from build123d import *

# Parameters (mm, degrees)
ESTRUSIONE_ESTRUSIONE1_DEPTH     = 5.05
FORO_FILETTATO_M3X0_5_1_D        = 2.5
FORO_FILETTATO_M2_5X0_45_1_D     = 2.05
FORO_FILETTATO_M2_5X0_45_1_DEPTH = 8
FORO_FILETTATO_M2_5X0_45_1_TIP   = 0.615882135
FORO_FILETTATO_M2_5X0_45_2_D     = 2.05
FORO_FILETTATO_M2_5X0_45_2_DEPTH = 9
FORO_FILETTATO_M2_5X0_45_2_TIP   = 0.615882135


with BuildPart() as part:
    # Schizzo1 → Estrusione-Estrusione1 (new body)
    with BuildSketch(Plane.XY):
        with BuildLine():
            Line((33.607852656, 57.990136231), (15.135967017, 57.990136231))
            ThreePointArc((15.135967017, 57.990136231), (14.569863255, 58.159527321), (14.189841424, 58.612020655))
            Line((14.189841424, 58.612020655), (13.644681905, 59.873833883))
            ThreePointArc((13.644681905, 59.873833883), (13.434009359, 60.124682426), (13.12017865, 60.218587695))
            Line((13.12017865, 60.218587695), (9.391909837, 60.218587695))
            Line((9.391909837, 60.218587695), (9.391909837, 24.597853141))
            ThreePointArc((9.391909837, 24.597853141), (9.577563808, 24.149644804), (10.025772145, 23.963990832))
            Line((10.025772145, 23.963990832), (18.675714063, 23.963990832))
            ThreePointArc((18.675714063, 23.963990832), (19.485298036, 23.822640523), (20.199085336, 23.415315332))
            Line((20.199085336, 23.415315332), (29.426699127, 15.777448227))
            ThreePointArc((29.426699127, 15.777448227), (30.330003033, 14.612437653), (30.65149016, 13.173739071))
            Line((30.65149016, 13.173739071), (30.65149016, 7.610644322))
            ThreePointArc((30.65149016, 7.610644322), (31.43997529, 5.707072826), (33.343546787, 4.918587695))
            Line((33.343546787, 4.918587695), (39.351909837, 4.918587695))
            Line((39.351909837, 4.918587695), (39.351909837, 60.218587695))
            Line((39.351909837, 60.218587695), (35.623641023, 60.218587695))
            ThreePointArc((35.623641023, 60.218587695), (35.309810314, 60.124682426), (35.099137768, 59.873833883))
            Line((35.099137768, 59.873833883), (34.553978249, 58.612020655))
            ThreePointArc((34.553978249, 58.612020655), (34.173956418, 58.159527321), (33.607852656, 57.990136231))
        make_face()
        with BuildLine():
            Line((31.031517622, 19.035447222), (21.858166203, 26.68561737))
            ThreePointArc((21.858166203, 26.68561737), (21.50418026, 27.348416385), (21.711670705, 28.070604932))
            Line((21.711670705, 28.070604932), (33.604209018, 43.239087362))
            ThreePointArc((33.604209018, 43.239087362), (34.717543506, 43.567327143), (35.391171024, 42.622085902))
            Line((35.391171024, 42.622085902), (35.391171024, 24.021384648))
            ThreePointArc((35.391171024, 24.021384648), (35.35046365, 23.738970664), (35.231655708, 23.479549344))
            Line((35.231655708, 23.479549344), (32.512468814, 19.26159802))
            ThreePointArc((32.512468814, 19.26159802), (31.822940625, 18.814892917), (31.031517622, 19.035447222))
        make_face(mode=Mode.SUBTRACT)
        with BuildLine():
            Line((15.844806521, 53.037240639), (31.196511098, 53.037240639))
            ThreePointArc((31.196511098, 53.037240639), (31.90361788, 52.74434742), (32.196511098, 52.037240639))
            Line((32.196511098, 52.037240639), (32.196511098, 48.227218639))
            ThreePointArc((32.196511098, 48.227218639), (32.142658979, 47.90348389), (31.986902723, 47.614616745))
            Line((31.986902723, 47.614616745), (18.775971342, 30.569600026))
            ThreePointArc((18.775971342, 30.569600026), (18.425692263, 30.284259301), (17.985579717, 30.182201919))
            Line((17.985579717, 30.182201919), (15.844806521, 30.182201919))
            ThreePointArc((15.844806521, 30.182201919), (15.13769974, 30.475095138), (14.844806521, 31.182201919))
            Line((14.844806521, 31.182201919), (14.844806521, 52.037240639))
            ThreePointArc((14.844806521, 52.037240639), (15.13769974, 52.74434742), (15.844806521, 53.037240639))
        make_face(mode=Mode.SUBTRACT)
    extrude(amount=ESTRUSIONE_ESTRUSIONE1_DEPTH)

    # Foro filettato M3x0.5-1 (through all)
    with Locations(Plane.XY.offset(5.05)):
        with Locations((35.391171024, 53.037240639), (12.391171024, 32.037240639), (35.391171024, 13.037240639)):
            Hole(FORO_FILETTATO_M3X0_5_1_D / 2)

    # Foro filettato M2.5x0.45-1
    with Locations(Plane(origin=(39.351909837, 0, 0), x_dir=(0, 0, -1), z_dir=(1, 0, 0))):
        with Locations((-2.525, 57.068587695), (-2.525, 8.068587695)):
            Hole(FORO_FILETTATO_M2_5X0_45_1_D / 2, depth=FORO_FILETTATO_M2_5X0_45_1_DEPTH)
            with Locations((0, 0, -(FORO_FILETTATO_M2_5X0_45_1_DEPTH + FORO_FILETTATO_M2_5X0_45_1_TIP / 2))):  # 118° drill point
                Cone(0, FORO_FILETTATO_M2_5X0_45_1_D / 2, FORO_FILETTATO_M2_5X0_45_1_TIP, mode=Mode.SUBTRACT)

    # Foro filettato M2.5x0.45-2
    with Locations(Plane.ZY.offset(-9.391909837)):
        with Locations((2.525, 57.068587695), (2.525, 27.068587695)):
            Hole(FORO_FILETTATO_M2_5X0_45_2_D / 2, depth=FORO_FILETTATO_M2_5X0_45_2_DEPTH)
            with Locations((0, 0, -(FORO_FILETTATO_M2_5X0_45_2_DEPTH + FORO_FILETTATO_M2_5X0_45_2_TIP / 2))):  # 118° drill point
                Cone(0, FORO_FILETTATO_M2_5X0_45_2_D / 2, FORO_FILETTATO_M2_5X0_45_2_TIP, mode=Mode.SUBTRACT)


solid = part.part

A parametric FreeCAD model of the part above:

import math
import FreeCAD as App
import Part
import Sketcher

V = App.Vector

doc = App.newDocument("Part")
body = doc.addObject("PartDesign::Body", "Body")

# Sketch on XY plane
sketch1 = body.newObject("Sketcher::SketchObject", "Sketch")
sketch1.AttachmentSupport = (doc.getObject("XY_Plane"), [""])
sketch1.MapMode = "FlatFace"
sketch1.addGeometry([
    Part.LineSegment(V(33.6, 58, 0), V(15.1, 58, 0)),  # 0
    Part.ArcOfCircle(Part.Circle(V(15.1, 59, 0), V(0, 0, 1), 1), math.radians(-157), math.radians(-90)),  # 1
    Part.LineSegment(V(14.2, 58.6, 0), V(13.6, 59.9, 0)),  # 2
    Part.ArcOfCircle(Part.Circle(V(13.1, 59.6, 0), V(0, 0, 1), 0.6), math.radians(23), math.radians(90)),  # 3
    Part.LineSegment(V(13.1, 60.2, 0), V(9.4, 60.2, 0)),  # 4
    Part.LineSegment(V(9.4, 60.2, 0), V(9.4, 24.6, 0)),  # 5
    Part.ArcOfCircle(Part.Circle(V(10, 24.6, 0), V(0, 0, 1), 0.6), math.radians(180), math.radians(270)),  # 6
    Part.LineSegment(V(10, 24, 0), V(18.7, 24, 0)),  # 7
    Part.ArcOfCircle(Part.Circle(V(18.7, 21.6, 0), V(0, 0, 1), 2.4), math.radians(50), math.radians(90)),  # 8
    Part.LineSegment(V(20.2, 23.4, 0), V(29.4, 15.8, 0)),  # 9
    Part.ArcOfCircle(Part.Circle(V(27.3, 13.2, 0), V(0, 0, 1), 3.4), math.radians(0), math.radians(50)),  # 10
    Part.LineSegment(V(30.7, 13.2, 0), V(30.7, 7.6, 0)),  # 11
    Part.ArcOfCircle(Part.Circle(V(33.3, 7.6, 0), V(0, 0, 1), 2.7), math.radians(180), math.radians(270)),  # 12
    Part.LineSegment(V(33.3, 4.9, 0), V(39.4, 4.9, 0)),  # 13
    Part.LineSegment(V(39.4, 4.9, 0), V(39.4, 60.2, 0)),  # 14
    Part.LineSegment(V(39.4, 60.2, 0), V(35.6, 60.2, 0)),  # 15
    Part.ArcOfCircle(Part.Circle(V(35.6, 59.6, 0), V(0, 0, 1), 0.6), math.radians(90), math.radians(157)),  # 16
    Part.LineSegment(V(35.1, 59.9, 0), V(34.6, 58.6, 0)),  # 17
    Part.ArcOfCircle(Part.Circle(V(33.6, 59, 0), V(0, 0, 1), 1), math.radians(-90), math.radians(-23)),  # 18
    Part.ArcOfCircle(Part.Circle(V(31.7, 19.8, 0), V(0, 0, 1), 1), math.radians(-130), math.radians(-33)),  # 19
    Part.LineSegment(V(31, 19, 0), V(21.9, 26.7, 0)),  # 20
    Part.ArcOfCircle(Part.Circle(V(22.5, 27.5, 0), V(0, 0, 1), 1), math.radians(142), math.radians(230)),  # 21
    Part.LineSegment(V(21.7, 28.1, 0), V(33.6, 43.2, 0)),  # 22
    Part.ArcOfCircle(Part.Circle(V(34.4, 42.6, 0), V(0, 0, 1), 1), math.radians(0), math.radians(142)),  # 23
    Part.LineSegment(V(35.4, 42.6, 0), V(35.4, 24, 0)),  # 24
    Part.ArcOfCircle(Part.Circle(V(34.4, 24, 0), V(0, 0, 1), 1), math.radians(-33), math.radians(0)),  # 25
    Part.LineSegment(V(35.2, 23.5, 0), V(32.5, 19.3, 0)),  # 26
    Part.ArcOfCircle(Part.Circle(V(15.8, 52, 0), V(0, 0, 1), 1), math.radians(90), math.radians(180)),  # 27
    Part.LineSegment(V(15.8, 53, 0), V(31.2, 53, 0)),  # 28
    Part.ArcOfCircle(Part.Circle(V(31.2, 52, 0), V(0, 0, 1), 1), math.radians(0), math.radians(90)),  # 29
    Part.LineSegment(V(32.2, 52, 0), V(32.2, 48.2, 0)),  # 30
    Part.ArcOfCircle(Part.Circle(V(31.2, 48.2, 0), V(0, 0, 1), 1), math.radians(-38), math.radians(0)),  # 31
    Part.LineSegment(V(32, 47.6, 0), V(18.8, 30.6, 0)),  # 32
    Part.ArcOfCircle(Part.Circle(V(18, 31.2, 0), V(0, 0, 1), 1), math.radians(-90), math.radians(-38)),  # 33
    Part.LineSegment(V(18, 30.2, 0), V(15.8, 30.2, 0)),  # 34
    Part.ArcOfCircle(Part.Circle(V(15.8, 31.2, 0), V(0, 0, 1), 1), math.radians(-180), math.radians(-90)),  # 35
    Part.LineSegment(V(14.8, 31.2, 0), V(14.8, 52, 0)),  # 36
], False)
sketch1.addConstraint([
    Sketcher.Constraint("Tangent", 0, 2, 1, 2),
    Sketcher.Constraint("Tangent", 1, 1, 2, 1),
    Sketcher.Constraint("Tangent", 2, 2, 3, 1),
    Sketcher.Constraint("Tangent", 3, 2, 4, 1),
    Sketcher.Constraint("Coincident", 4, 2, 5, 1),
    Sketcher.Constraint("Tangent", 5, 2, 6, 1),
    Sketcher.Constraint("Tangent", 6, 2, 7, 1),
    Sketcher.Constraint("Tangent", 7, 2, 8, 2),
    Sketcher.Constraint("Tangent", 8, 1, 9, 1),
    Sketcher.Constraint("Tangent", 9, 2, 10, 2),
    Sketcher.Constraint("Tangent", 10, 1, 11, 1),
    Sketcher.Constraint("Tangent", 11, 2, 12, 1),
    Sketcher.Constraint("Tangent", 12, 2, 13, 1),
    Sketcher.Constraint("Coincident", 13, 2, 14, 1),
    Sketcher.Constraint("Coincident", 14, 2, 15, 1),
    Sketcher.Constraint("Tangent", 15, 2, 16, 1),
    Sketcher.Constraint("Tangent", 16, 2, 17, 1),
    Sketcher.Constraint("Tangent", 17, 2, 18, 2),
    Sketcher.Constraint("Tangent", 18, 1, 0, 1),
    Sketcher.Constraint("Tangent", 19, 1, 20, 1),
    Sketcher.Constraint("Tangent", 20, 2, 21, 2),
    Sketcher.Constraint("Tangent", 21, 1, 22, 1),
    Sketcher.Constraint("Tangent", 22, 2, 23, 2),
    Sketcher.Constraint("Tangent", 23, 1, 24, 1),
    Sketcher.Constraint("Tangent", 24, 2, 25, 2),
    Sketcher.Constraint("Tangent", 25, 1, 26, 1),
    Sketcher.Constraint("Tangent", 26, 2, 19, 2),
    Sketcher.Constraint("Tangent", 27, 1, 28, 1),
    Sketcher.Constraint("Tangent", 28, 2, 29, 2),
    Sketcher.Constraint("Tangent", 29, 1, 30, 1),
    Sketcher.Constraint("Tangent", 30, 2, 31, 2),
    Sketcher.Constraint("Tangent", 31, 1, 32, 1),
    Sketcher.Constraint("Tangent", 32, 2, 33, 2),
    Sketcher.Constraint("Tangent", 33, 1, 34, 1),
    Sketcher.Constraint("Tangent", 34, 2, 35, 2),
    Sketcher.Constraint("Tangent", 35, 1, 36, 1),
    Sketcher.Constraint("Tangent", 36, 2, 27, 2),
    Sketcher.Constraint("Horizontal", 0),
    Sketcher.Constraint("Horizontal", 4),
    Sketcher.Constraint("Vertical", 5),
    Sketcher.Constraint("Horizontal", 7),
    Sketcher.Constraint("Vertical", 11),
    Sketcher.Constraint("Horizontal", 13),
    Sketcher.Constraint("Vertical", 14),
    Sketcher.Constraint("Horizontal", 15),
    Sketcher.Constraint("Vertical", 24),
    Sketcher.Constraint("Horizontal", 28),
    Sketcher.Constraint("Vertical", 30),
    Sketcher.Constraint("Horizontal", 34),
    Sketcher.Constraint("Vertical", 36),
    Sketcher.Constraint("Equal", 3, 16),
    Sketcher.Constraint("Equal", 1, 18),
    Sketcher.Constraint("Equal", 19, 21),
    Sketcher.Constraint("Equal", 21, 23),
    Sketcher.Constraint("Equal", 23, 25),
    Sketcher.Constraint("Equal", 25, 27),
    Sketcher.Constraint("Equal", 27, 29),
    Sketcher.Constraint("Equal", 29, 31),
    Sketcher.Constraint("Equal", 31, 33),
    Sketcher.Constraint("Equal", 33, 35),
    Sketcher.Constraint("Horizontal", 3, 3, 16, 3),
    Sketcher.Constraint("Horizontal", 2, 2, 16, 2),
    Sketcher.Constraint("Equal", 4, 15),
    Sketcher.Constraint("Radius", 19, 1.0),
    Sketcher.Constraint("DistanceY", 14, 1, 14, 2, 55.3),
    Sketcher.Constraint("Radius", 8, 2.389121),
    Sketcher.Constraint("Radius", 10, 3.379929),
    Sketcher.Constraint("DistanceY", 24, 2, 24, 1, 18.600701),
    Sketcher.Constraint("Radius", 1, 1.030653),
    Sketcher.Constraint("Radius", 3, 0.571363),
    Sketcher.Constraint("Radius", 6, 0.633862),
    Sketcher.Constraint("Radius", 12, 2.692057),
    Sketcher.Constraint("DistanceY", 9, 2, 19, 1, 3.257999),
    Sketcher.Constraint("DistanceY", 21, 3, 21, 1, 0.617001),
    Sketcher.Constraint("DistanceX", 4, 2, 4, 1, 3.728269),
    Sketcher.Constraint("DistanceX", 7, 1, 7, 2, 8.649942),
    Sketcher.Constraint("DistanceY", 30, 2, 30, 1, 3.810022),
    Sketcher.Constraint("DistanceY", 36, 1, 36, 2, 20.855039),
    Sketcher.Constraint("DistanceY", -1, 1, 33, 3, 31.182202),
    Sketcher.Constraint("DistanceX", -1, 1, 9, 2, 29.426699),
    Sketcher.Constraint("DistanceY", -1, 1, 26, 2, 19.261598),
    Sketcher.Constraint("DistanceY", -1, 1, 32, 2, 30.5696),
    Sketcher.Constraint("DistanceY", 21, 3, 33, 3, 3.728598),
    Sketcher.Constraint("DistanceY", 1, 3, 3, 2, 1.197799),
    Sketcher.Constraint("DistanceX", 29, 3, 14, 2, 8.155399),
    Sketcher.Constraint("DistanceY", 23, 3, 14, 2, 17.596502),
    Sketcher.Constraint("DistanceY", 9, 2, 25, 1, 7.702101),
    Sketcher.Constraint("DistanceX", 32, 2, 21, 1, 2.935699),
    Sketcher.Constraint("Distance", 9, 11.978559),
    Sketcher.Constraint("DistanceX", 0, 2, 0, 1, 18.471886),
    Sketcher.Constraint("DistanceX", 13, 1, 13, 2, 6.008363),
    Sketcher.Constraint("DistanceX", 28, 1, 28, 2, 15.351705),
    Sketcher.Constraint("DistanceY", 5, 2, 5, 1, 35.620735),
    Sketcher.Constraint("DistanceY", 11, 2, 11, 1, 5.563095),
])
pad1 = body.newObject("PartDesign::Pad", "Pad")
pad1.Profile = sketch1
pad1.Length = 5.05

# Sketch on XY plane
sketch2 = body.newObject("Sketcher::SketchObject", "Sketch001")
sketch2.AttachmentSupport = (doc.getObject("XY_Plane"), [""])
sketch2.MapMode = "FlatFace"
sketch2.AttachmentOffset = App.Placement(V(0, 0, 5.05), App.Rotation())
sketch2.addGeometry([
    Part.Circle(V(35.4, 53, 0), V(0, 0, 1), 1.2),
    Part.Circle(V(12.4, 32, 0), V(0, 0, 1), 1.2),
    Part.Circle(V(35.4, 13, 0), V(0, 0, 1), 1.2),
], False)
sketch2.addConstraint([
    Sketcher.Constraint("Equal", 0, 1),
    Sketcher.Constraint("Equal", 1, 2),
    Sketcher.Constraint("Vertical", 0, 3, 2, 3),
    Sketcher.Constraint("Diameter", 0, 2.5),
    Sketcher.Constraint("DistanceX", 1, 3, 0, 3, 23.0),
    Sketcher.Constraint("DistanceY", 1, 3, 0, 3, 21.0),
    Sketcher.Constraint("DistanceY", 2, 3, 1, 3, 19.0),
    Sketcher.Constraint("DistanceX", -1, 1, 0, 3, 35.391171),
    Sketcher.Constraint("DistanceY", -1, 1, 0, 3, 53.037241),
])
doc.recompute()
hole = body.newObject("PartDesign::Hole", "Hole")
hole.Profile = sketch2
hole.ThreadType = "None"
hole.Diameter = 2.5
hole.DepthType = "ThroughAll"

# Sketch on YZ plane
sketch3 = body.newObject("Sketcher::SketchObject", "Sketch002")
sketch3.AttachmentSupport = (doc.getObject("YZ_Plane"), [""])
sketch3.MapMode = "FlatFace"
sketch3.AttachmentOffset = App.Placement(V(0, 0, 39.35191), App.Rotation())
sketch3.addGeometry([
    Part.Circle(V(57.1, 2.5, 0), V(0, 0, 1), 1),
    Part.Circle(V(8.1, 2.5, 0), V(0, 0, 1), 1),
], False)
sketch3.addConstraint([
    Sketcher.Constraint("Equal", 0, 1),
    Sketcher.Constraint("Horizontal", 0, 3, 1, 3),
    Sketcher.Constraint("Diameter", 0, 2.05),
    Sketcher.Constraint("DistanceX", 1, 3, 0, 3, 49.0),
    Sketcher.Constraint("DistanceY", -1, 1, 0, 3, 2.525),
    Sketcher.Constraint("DistanceX", -1, 1, 0, 3, 57.068588),
])
doc.recompute()
hole2 = body.newObject("PartDesign::Hole", "Hole001")
hole2.Profile = sketch3
hole2.ThreadType = "None"
hole2.Diameter = 2.05
hole2.DepthType = "Dimension"
hole2.Depth = 8
hole2.DrillPoint = "Angled"
hole2.DrillPointAngle = 118

# Sketch on YZ plane
sketch4 = body.newObject("Sketcher::SketchObject", "Sketch003")
sketch4.AttachmentSupport = (doc.getObject("YZ_Plane"), [""])
sketch4.MapMode = "FlatFace"
sketch4.AttachmentOffset = App.Placement(V(0, 0, 9.39191), App.Rotation())
sketch4.addGeometry([
    Part.Circle(V(57.1, 2.5, 0), V(0, 0, 1), 1),
    Part.Circle(V(27.1, 2.5, 0), V(0, 0, 1), 1),
], False)
sketch4.addConstraint([
    Sketcher.Constraint("Equal", 0, 1),
    Sketcher.Constraint("Horizontal", 0, 3, 1, 3),
    Sketcher.Constraint("Diameter", 0, 2.05),
    Sketcher.Constraint("DistanceX", 1, 3, 0, 3, 30.0),
    Sketcher.Constraint("DistanceY", -1, 1, 0, 3, 2.525),
    Sketcher.Constraint("DistanceX", -1, 1, 0, 3, 57.068588),
])
doc.recompute()
hole3 = body.newObject("PartDesign::Hole", "Hole002")
hole3.Profile = sketch4
hole3.ThreadType = "None"
hole3.Diameter = 2.05
hole3.DepthType = "Dimension"
hole3.Depth = 9
hole3.DrillPoint = "Angled"
hole3.DrillPointAngle = 118
hole3.Reversed = True

doc.recompute()
